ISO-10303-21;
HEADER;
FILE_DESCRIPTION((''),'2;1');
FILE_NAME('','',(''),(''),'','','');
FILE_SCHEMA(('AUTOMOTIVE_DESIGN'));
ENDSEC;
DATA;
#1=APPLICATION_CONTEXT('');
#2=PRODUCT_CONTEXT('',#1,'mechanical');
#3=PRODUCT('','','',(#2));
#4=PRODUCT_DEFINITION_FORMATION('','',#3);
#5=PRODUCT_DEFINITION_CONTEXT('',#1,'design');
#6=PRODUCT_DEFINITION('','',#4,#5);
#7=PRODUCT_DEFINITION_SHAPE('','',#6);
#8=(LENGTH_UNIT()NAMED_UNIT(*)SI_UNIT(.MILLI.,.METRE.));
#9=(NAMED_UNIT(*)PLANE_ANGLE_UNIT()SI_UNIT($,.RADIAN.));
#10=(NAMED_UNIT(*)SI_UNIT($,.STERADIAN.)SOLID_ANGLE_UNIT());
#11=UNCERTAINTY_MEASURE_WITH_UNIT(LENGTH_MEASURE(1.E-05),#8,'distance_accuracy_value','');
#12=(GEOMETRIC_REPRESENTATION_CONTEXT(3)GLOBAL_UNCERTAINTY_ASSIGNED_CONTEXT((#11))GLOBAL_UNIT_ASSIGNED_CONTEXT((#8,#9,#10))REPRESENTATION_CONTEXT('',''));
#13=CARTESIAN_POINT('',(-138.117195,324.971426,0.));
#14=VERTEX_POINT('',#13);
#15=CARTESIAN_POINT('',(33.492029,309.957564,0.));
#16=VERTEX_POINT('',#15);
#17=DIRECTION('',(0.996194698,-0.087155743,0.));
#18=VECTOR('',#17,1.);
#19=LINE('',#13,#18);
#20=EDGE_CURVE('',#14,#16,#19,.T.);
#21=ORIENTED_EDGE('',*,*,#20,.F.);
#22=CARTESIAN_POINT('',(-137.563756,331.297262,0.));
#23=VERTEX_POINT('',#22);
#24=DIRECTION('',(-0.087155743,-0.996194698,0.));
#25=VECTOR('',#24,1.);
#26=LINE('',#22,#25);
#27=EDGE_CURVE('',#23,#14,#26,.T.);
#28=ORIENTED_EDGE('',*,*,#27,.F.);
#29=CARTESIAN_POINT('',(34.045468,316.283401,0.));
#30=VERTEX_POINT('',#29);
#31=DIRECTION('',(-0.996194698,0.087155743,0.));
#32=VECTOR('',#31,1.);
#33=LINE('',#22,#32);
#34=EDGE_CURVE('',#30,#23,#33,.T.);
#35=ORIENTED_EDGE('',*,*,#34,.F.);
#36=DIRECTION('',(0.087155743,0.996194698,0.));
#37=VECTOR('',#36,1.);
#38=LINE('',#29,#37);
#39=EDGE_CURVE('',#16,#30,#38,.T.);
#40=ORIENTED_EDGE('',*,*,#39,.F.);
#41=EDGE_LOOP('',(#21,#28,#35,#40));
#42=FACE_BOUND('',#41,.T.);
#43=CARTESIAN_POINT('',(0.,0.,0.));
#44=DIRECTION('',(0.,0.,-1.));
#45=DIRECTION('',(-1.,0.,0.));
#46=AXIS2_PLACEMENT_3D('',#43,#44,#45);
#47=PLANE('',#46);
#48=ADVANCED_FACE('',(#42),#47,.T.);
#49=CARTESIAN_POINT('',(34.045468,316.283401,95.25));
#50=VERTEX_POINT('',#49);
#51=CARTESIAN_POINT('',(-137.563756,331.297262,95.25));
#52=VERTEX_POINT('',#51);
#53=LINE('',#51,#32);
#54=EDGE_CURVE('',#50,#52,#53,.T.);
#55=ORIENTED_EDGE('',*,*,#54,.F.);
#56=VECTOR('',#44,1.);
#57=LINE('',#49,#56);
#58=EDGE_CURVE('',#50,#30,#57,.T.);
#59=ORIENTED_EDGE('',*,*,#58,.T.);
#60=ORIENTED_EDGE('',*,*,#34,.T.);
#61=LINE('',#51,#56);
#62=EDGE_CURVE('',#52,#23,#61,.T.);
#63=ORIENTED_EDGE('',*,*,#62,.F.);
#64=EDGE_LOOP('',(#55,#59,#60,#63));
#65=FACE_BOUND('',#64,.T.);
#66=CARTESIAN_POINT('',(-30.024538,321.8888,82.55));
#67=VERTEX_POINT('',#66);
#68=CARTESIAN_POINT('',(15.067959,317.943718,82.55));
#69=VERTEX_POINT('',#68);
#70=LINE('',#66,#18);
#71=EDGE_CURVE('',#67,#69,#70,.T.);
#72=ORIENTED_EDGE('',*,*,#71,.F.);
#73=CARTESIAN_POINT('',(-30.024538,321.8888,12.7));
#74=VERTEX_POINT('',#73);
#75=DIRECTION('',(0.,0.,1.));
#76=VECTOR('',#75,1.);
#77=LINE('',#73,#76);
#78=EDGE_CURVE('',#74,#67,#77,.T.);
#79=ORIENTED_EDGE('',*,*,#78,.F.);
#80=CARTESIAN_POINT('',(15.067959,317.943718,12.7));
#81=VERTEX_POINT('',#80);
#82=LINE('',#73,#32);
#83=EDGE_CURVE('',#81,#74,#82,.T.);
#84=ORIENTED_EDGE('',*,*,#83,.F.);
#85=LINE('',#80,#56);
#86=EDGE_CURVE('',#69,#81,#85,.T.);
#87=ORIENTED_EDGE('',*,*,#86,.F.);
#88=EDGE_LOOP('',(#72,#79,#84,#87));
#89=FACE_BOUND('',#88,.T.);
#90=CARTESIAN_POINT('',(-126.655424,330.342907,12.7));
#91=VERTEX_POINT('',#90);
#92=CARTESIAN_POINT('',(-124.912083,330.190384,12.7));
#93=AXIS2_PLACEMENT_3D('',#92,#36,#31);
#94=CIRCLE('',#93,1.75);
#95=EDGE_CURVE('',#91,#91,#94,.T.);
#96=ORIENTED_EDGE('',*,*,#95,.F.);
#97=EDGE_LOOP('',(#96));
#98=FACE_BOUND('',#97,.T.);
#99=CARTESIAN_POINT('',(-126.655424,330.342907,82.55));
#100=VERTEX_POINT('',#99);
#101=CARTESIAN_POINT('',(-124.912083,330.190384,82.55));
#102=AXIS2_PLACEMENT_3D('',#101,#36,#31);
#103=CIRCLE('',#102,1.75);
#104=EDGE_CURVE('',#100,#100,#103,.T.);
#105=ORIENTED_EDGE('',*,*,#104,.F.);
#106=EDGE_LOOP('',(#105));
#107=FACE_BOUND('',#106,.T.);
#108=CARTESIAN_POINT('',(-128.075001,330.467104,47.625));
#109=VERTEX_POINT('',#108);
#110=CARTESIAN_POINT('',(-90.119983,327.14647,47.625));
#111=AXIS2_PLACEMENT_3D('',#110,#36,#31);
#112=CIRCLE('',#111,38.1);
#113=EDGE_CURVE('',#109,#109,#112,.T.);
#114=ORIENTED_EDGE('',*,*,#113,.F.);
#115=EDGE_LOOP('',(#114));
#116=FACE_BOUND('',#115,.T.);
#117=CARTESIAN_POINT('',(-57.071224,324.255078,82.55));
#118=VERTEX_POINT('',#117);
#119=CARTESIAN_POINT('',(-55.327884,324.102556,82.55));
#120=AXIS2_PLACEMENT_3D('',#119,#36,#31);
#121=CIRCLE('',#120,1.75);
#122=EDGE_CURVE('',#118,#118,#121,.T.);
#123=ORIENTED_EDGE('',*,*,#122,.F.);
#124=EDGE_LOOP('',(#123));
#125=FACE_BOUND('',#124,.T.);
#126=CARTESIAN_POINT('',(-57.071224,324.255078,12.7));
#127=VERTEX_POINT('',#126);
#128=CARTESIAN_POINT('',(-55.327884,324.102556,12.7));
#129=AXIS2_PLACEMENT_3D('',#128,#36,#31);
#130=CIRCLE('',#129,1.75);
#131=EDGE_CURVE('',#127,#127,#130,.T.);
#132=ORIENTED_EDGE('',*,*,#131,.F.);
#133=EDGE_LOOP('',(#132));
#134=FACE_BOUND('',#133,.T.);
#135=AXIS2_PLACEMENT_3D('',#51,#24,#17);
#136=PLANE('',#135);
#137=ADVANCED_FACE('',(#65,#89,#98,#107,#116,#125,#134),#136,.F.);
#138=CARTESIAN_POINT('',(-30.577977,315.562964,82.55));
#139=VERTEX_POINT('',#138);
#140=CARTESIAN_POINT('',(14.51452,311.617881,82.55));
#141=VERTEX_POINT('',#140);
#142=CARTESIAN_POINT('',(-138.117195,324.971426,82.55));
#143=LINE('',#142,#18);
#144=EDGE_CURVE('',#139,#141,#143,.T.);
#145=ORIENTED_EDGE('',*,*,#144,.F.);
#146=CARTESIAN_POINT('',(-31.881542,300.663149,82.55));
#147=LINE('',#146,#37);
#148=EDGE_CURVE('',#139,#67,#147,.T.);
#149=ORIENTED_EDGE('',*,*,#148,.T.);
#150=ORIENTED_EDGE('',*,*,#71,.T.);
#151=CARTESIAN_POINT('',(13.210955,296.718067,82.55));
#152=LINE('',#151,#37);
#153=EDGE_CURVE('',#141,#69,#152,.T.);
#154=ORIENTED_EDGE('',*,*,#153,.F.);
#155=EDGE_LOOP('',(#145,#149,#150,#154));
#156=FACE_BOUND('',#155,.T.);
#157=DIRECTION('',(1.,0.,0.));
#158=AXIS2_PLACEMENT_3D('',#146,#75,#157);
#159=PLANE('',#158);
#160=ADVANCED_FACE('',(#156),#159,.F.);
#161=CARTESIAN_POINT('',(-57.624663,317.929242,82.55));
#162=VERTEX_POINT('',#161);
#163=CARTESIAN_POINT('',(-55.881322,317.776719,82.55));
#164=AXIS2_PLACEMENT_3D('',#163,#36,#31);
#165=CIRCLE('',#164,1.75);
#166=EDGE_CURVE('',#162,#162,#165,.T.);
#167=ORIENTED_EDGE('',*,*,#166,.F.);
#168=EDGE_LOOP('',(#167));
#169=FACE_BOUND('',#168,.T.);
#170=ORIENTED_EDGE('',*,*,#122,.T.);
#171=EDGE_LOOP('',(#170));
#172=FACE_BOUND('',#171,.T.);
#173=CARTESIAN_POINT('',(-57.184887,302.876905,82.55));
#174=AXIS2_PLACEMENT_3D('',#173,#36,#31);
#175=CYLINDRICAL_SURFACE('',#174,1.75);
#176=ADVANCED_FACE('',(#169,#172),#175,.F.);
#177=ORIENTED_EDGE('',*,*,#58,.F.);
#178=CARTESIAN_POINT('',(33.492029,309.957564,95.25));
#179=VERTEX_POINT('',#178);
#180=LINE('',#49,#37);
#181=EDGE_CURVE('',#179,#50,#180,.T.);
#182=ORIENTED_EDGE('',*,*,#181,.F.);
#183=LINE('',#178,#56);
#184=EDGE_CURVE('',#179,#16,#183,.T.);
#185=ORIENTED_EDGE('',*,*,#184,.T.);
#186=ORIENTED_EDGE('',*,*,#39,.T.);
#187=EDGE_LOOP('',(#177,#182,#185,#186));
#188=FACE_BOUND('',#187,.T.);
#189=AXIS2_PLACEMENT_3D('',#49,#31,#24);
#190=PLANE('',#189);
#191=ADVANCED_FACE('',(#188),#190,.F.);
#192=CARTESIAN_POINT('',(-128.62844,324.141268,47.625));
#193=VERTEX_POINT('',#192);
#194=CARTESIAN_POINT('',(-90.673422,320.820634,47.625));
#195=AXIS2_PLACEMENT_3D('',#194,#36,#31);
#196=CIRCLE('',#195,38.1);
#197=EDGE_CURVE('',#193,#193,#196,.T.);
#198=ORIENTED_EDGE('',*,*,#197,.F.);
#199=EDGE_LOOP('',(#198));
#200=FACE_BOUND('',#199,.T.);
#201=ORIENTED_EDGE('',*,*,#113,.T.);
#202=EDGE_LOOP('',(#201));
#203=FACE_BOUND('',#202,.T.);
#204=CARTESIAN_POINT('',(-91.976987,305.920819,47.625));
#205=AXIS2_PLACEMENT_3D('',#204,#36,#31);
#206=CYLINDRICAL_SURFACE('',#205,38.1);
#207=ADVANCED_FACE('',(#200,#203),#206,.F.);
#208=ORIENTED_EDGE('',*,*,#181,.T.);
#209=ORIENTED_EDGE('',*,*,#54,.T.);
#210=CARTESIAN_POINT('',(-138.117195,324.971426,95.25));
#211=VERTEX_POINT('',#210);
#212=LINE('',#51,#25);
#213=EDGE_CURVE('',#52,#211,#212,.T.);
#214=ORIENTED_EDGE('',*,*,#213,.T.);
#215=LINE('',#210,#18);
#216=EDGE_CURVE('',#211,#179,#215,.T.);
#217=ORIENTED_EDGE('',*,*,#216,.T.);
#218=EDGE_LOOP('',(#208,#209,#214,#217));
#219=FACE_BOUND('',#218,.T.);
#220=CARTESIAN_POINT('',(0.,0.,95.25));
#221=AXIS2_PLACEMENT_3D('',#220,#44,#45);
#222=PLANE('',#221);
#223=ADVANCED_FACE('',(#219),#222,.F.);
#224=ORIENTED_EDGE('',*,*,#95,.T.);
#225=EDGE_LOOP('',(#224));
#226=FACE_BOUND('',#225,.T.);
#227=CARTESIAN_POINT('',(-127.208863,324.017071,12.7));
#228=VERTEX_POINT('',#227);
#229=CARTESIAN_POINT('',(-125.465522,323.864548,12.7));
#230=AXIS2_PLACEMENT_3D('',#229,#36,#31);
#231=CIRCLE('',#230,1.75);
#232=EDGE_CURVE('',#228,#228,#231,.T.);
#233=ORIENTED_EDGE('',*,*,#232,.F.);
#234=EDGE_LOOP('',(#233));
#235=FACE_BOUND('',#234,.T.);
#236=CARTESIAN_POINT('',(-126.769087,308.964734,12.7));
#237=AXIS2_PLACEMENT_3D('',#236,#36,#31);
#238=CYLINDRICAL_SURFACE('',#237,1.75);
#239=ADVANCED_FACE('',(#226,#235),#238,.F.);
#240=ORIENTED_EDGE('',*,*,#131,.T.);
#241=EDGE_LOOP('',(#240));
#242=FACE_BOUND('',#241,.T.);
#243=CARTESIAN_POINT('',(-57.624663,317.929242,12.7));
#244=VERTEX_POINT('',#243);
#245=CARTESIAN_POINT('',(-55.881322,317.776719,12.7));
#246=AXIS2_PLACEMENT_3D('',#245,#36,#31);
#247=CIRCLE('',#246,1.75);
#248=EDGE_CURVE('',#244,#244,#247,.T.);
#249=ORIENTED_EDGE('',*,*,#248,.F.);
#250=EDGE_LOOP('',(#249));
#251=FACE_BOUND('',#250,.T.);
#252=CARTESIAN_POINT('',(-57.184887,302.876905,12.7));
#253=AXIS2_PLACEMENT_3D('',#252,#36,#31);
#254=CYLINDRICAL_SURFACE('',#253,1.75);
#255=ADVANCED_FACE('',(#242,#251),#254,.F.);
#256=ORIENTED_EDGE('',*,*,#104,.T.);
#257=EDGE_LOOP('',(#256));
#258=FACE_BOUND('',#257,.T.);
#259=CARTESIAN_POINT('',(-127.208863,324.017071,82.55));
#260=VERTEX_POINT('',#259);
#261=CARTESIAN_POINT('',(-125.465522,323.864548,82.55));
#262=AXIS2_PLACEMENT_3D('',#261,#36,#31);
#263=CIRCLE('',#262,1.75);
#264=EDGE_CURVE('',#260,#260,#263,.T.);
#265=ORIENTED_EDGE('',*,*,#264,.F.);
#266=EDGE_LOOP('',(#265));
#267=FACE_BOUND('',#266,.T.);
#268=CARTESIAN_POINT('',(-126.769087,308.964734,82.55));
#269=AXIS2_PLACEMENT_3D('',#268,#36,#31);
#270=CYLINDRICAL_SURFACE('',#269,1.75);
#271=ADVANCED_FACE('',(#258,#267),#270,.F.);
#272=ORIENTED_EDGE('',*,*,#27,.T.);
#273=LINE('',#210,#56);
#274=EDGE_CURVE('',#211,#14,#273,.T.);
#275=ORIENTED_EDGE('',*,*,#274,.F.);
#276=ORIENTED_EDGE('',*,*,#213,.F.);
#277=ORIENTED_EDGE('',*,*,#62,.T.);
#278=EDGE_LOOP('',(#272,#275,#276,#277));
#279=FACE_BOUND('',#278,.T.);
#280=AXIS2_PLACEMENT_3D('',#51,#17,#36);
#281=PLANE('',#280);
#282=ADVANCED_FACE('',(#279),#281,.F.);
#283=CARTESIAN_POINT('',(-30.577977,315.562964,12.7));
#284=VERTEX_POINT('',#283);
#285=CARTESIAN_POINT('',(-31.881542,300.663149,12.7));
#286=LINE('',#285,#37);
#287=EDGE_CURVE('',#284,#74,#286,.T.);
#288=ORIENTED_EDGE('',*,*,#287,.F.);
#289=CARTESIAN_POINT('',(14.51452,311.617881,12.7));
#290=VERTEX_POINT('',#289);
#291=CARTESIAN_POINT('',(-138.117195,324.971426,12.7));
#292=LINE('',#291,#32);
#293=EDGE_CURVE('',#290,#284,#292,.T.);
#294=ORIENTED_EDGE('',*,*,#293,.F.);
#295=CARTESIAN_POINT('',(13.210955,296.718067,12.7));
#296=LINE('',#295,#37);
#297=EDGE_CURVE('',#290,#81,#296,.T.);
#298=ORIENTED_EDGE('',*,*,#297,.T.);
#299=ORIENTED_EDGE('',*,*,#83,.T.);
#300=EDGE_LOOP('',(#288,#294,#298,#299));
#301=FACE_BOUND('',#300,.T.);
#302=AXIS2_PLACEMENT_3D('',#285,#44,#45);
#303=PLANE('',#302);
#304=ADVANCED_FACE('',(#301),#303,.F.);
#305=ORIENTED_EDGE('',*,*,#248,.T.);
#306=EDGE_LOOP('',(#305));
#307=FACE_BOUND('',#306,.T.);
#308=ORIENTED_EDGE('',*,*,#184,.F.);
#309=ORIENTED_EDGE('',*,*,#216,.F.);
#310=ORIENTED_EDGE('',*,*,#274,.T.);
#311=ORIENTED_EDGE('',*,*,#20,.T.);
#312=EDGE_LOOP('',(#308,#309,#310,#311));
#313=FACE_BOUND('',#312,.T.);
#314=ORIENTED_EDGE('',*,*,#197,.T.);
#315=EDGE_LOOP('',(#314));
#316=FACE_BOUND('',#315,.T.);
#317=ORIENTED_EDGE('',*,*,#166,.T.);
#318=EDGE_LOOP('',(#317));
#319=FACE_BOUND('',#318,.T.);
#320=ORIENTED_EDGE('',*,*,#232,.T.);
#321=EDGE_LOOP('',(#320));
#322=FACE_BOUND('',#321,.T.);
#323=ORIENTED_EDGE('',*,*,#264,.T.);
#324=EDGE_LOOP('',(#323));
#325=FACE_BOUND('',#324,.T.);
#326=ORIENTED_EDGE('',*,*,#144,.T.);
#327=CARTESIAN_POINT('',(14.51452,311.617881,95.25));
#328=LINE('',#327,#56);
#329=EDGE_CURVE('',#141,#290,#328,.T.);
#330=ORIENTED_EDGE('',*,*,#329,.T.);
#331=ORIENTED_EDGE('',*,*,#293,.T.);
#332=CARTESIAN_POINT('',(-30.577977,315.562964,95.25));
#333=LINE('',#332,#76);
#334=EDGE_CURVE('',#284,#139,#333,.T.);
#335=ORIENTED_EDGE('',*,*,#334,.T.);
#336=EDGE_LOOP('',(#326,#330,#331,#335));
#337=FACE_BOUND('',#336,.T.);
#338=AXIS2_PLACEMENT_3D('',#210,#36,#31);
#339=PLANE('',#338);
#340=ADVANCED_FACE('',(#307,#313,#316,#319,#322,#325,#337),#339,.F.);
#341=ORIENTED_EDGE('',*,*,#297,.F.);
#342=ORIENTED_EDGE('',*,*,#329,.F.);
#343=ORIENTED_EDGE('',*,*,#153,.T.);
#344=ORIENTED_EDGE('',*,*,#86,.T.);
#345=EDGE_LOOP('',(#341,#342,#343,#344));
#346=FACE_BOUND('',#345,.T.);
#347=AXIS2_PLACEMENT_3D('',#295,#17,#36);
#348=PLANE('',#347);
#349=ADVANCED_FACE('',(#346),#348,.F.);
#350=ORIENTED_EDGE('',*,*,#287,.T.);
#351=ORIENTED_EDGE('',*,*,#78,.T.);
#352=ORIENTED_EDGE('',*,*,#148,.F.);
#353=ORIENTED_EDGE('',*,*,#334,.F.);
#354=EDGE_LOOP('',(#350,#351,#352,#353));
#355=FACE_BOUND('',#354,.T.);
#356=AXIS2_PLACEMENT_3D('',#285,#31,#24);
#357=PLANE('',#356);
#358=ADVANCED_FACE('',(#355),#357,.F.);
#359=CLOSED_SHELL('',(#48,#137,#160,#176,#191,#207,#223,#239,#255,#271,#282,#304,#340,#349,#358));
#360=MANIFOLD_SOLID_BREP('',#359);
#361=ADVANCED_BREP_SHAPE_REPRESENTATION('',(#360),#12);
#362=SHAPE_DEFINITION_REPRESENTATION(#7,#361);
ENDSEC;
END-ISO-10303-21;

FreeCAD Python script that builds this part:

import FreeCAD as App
import Part
import Sketcher

V = App.Vector
Q = App.Units.Quantity


def add_polygon(sketch, points):
    """Adds a closed chain of lines whose ends are joined by coincident constraints."""
    first, n = sketch.GeometryCount, len(points)
    for a, b in zip(points, points[1:] + points[:1]):
        sketch.addGeometry(Part.LineSegment(App.Vector(*a, 0), App.Vector(*b, 0)), False)
    for i in range(n):
        sketch.addConstraint(Sketcher.Constraint("Coincident", first + i, 2, first + (i + 1) % n, 1))

doc = App.newDocument("Part")
body = doc.addObject("PartDesign::Body", "Body")

# Sketch on XY plane
sketch1 = body.newObject("Sketcher::SketchObject", "Sketch")
sketch1.AttachmentSupport = (doc.getObject("XY_Plane"), [""])
sketch1.MapMode = "FlatFace"
add_polygon(sketch1, [(-137.563756, 331.297262), (-138.117195, 324.971426), (33.492029, 309.957564), (34.045468, 316.283401)])  # lines 0-3
sketch1.addConstraint([
    Sketcher.Constraint("Perpendicular", 0, 1),
    Sketcher.Constraint("Perpendicular", 1, 2),
    Sketcher.Constraint("Perpendicular", 2, 3),
    Sketcher.Constraint("Angle", 0, Q("-95 deg")),
    Sketcher.Constraint("Distance", 0, Q("0.25 in")),
    Sketcher.Constraint("DistanceY", -1, 1, 2, 2, Q("316.283401 mm")),
    Sketcher.Constraint("DistanceX", -1, 1, 1, 2, Q("33.492029 mm")),
    Sketcher.Constraint("DistanceY", 1, 2, 0, 2, Q("15.013862 mm")),
])
pad1 = body.newObject("PartDesign::Pad", "Pad")
pad1.Profile = sketch1
pad1.Length = Q("3.75 in")

# Sketch on an angled plane
sketch2 = body.newObject("Sketcher::SketchObject", "Sketch001")
sketch2.Placement = App.Placement(V(27.719632, 316.83684, 0), App.Rotation(V(0.996194698, -0.087155743, 0), V(0, 0, -1), V(0.087155743, 0.996194698, 0), "ZXY"))
sketch2.addGeometry(Part.Circle(V(-118.289743, -47.625, 0), V(0, 0, 1), 38.1), False)
sketch2.addConstraint([
    Sketcher.Constraint("Diameter", 0, Q("3 in")),
    Sketcher.Constraint("DistanceY", 0, 3, -1, 1, Q("1.875 in")),
    Sketcher.Constraint("DistanceX", 0, 3, -1, 1, Q("118.289743 mm")),
])
pocket1 = body.newObject("PartDesign::Pocket", "Pocket")
pocket1.Profile = sketch2
pocket1.Type = "ThroughAll"

# Sketch on an angled plane
sketch3 = body.newObject("Sketcher::SketchObject", "Sketch002")
sketch3.Placement = App.Placement(V(27.719632, 316.83684, 0), App.Rotation(V(0.996194698, -0.087155743, 0), V(0, 0, -1), V(0.087155743, 0.996194698, 0), "ZXY"))
sketch3.addGeometry([
    Part.Circle(V(-153.214743, -12.7, 0), V(0, 0, 1), 1.75),
    Part.Circle(V(-153.214743, -82.55, 0), V(0, 0, 1), 1.75),
    Part.Circle(V(-83.364743, -82.55, 0), V(0, 0, 1), 1.75),
    Part.Circle(V(-83.364743, -12.7, 0), V(0, 0, 1), 1.75),
], False)
sketch3.addConstraint([
    Sketcher.Constraint("Equal", 0, 1),
    Sketcher.Constraint("Equal", 1, 2),
    Sketcher.Constraint("Equal", 2, 3),
    Sketcher.Constraint("Horizontal", 1, 3, 2, 3),
    Sketcher.Constraint("Horizontal", 0, 3, 3, 3),
    Sketcher.Constraint("Vertical", 0, 3, 1, 3),
    Sketcher.Constraint("Vertical", 2, 3, 3, 3),
    Sketcher.Constraint("DistanceY", 0, 3, -1, 1, Q("0.5 in")),
    Sketcher.Constraint("Diameter", 0, Q("3.5 mm")),
    Sketcher.Constraint("DistanceY", 1, 3, -1, 1, Q("3.25 in")),
    Sketcher.Constraint("DistanceX", 1, 3, 2, 3, Q("2.75 in")),
    Sketcher.Constraint("DistanceX", 0, 3, -1, 1, Q("153.214743 mm")),
])
pocket2 = body.newObject("PartDesign::Pocket", "Pocket001")
pocket2.Profile = sketch3
pocket2.Type = "ThroughAll"

# Sketch on an angled plane
sketch4 = body.newObject("Sketcher::SketchObject", "Sketch003")
sketch4.Placement = App.Placement(V(27.719632, 316.83684, 0), App.Rotation(V(0.996194698, -0.087155743, 0), V(0, 0, -1), V(0.087155743, 0.996194698, 0), "ZXY"))
add_polygon(sketch4, [(-57.964743, -12.7), (-57.964743, -82.55), (-12.7, -82.55), (-12.7, -12.7)])  # lines 0-3
sketch4.addConstraint([
    Sketcher.Constraint("Vertical", 0),
    Sketcher.Constraint("Horizontal", 1),
    Sketcher.Constraint("Vertical", 2),
    Sketcher.Constraint("Horizontal", 3),
    Sketcher.Constraint("DistanceY", 0, 2, 0, 1, Q("2.75 in")),
    Sketcher.Constraint("DistanceX", 1, 2, -1, 1, Q("0.5 in")),
    Sketcher.Constraint("DistanceY", 2, 2, -1, 1, Q("0.5 in")),
    Sketcher.Constraint("DistanceX", 1, 1, 1, 2, Q("45.264743 mm")),
])
pocket3 = body.newObject("PartDesign::Pocket", "Pocket002")
pocket3.Profile = sketch4
pocket3.Type = "ThroughAll"

doc.recompute()
